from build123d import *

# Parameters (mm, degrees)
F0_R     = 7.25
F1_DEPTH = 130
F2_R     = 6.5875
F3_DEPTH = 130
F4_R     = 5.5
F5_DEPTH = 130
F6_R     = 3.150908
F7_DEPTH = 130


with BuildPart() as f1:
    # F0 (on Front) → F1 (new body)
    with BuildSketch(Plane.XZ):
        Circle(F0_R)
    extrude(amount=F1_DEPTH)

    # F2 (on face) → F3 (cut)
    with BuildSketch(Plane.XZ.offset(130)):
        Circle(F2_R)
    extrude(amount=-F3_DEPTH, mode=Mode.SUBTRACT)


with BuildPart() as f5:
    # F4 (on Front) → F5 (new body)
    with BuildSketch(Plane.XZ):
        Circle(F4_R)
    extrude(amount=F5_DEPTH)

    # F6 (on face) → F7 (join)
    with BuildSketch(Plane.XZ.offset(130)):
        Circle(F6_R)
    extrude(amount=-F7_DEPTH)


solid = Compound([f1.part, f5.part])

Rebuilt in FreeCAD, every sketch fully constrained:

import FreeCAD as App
import Part
import Sketcher
Q = App.Units.Quantity

doc = App.newDocument("Part")
body = doc.addObject("PartDesign::Body", "Body")

# Sketch on XZ plane
sketch1 = body.newObject("Sketcher::SketchObject", "Sketch")
sketch1.AttachmentSupport = (doc.getObject("XZ_Plane"), [""])
sketch1.MapMode = "FlatFace"
sketch1.addGeometry(Part.Circle(App.Vector(0, 0, 0), App.Vector(0, 0, 1), 7), False)
sketch1.addConstraint(Sketcher.Constraint("Coincident", 0, 3, -1, 1))
sketch1.addConstraint(Sketcher.Constraint("Diameter", 0, Q("14.5 mm")))
pad1 = body.newObject("PartDesign::Pad", "Pad")
pad1.Profile = sketch1
pad1.Length = 130

# Sketch on XZ plane
sketch2 = body.newObject("Sketcher::SketchObject", "Sketch001")
sketch2.AttachmentSupport = (doc.getObject("XZ_Plane"), [""])
sketch2.MapMode = "FlatFace"
sketch2.AttachmentOffset = App.Placement(App.Vector(0, 0, 130), App.Rotation())
sketch2.addGeometry(Part.Circle(App.Vector(0, 0, 0), App.Vector(0, 0, 1), 7), False)
sketch2.addConstraint(Sketcher.Constraint("Coincident", 0, 3, -1, 1))
sketch2.addConstraint(Sketcher.Constraint("Diameter", 0, Q("13.175 mm")))
pocket1 = body.newObject("PartDesign::Pocket", "Pocket")
pocket1.Profile = sketch2
pocket1.Length = 130
body2 = doc.addObject("PartDesign::Body", "Body001")

# Sketch on XZ plane
sketch3 = body2.newObject("Sketcher::SketchObject", "Sketch002")
sketch3.AttachmentSupport = (doc.getObject("XZ_Plane001"), [""])
sketch3.MapMode = "FlatFace"
sketch3.addGeometry(Part.Circle(App.Vector(0, 0, 0), App.Vector(0, 0, 1), 6), False)
sketch3.addConstraint(Sketcher.Constraint("Coincident", 0, 3, -1, 1))
sketch3.addConstraint(Sketcher.Constraint("Diameter", 0, Q("11 mm")))
pad2 = body2.newObject("PartDesign::Pad", "Pad001")
pad2.Profile = sketch3
pad2.Length = 130

# Sketch on XZ plane
sketch4 = body2.newObject("Sketcher::SketchObject", "Sketch003")
sketch4.AttachmentSupport = (doc.getObject("XZ_Plane001"), [""])
sketch4.MapMode = "FlatFace"
sketch4.AttachmentOffset = App.Placement(App.Vector(0, 0, 130), App.Rotation())
sketch4.addGeometry(Part.Circle(App.Vector(0, 0, 0), App.Vector(0, 0, 1), 3.2), False)
sketch4.addConstraint(Sketcher.Constraint("Coincident", 0, 3, -1, 1))
sketch4.addConstraint(Sketcher.Constraint("Diameter", 0, Q("6.301816 mm")))
pad3 = body2.newObject("PartDesign::Pad", "Pad002")
pad3.Profile = sketch4
pad3.Length = 130
pad3.Reversed = True

doc.recompute()
